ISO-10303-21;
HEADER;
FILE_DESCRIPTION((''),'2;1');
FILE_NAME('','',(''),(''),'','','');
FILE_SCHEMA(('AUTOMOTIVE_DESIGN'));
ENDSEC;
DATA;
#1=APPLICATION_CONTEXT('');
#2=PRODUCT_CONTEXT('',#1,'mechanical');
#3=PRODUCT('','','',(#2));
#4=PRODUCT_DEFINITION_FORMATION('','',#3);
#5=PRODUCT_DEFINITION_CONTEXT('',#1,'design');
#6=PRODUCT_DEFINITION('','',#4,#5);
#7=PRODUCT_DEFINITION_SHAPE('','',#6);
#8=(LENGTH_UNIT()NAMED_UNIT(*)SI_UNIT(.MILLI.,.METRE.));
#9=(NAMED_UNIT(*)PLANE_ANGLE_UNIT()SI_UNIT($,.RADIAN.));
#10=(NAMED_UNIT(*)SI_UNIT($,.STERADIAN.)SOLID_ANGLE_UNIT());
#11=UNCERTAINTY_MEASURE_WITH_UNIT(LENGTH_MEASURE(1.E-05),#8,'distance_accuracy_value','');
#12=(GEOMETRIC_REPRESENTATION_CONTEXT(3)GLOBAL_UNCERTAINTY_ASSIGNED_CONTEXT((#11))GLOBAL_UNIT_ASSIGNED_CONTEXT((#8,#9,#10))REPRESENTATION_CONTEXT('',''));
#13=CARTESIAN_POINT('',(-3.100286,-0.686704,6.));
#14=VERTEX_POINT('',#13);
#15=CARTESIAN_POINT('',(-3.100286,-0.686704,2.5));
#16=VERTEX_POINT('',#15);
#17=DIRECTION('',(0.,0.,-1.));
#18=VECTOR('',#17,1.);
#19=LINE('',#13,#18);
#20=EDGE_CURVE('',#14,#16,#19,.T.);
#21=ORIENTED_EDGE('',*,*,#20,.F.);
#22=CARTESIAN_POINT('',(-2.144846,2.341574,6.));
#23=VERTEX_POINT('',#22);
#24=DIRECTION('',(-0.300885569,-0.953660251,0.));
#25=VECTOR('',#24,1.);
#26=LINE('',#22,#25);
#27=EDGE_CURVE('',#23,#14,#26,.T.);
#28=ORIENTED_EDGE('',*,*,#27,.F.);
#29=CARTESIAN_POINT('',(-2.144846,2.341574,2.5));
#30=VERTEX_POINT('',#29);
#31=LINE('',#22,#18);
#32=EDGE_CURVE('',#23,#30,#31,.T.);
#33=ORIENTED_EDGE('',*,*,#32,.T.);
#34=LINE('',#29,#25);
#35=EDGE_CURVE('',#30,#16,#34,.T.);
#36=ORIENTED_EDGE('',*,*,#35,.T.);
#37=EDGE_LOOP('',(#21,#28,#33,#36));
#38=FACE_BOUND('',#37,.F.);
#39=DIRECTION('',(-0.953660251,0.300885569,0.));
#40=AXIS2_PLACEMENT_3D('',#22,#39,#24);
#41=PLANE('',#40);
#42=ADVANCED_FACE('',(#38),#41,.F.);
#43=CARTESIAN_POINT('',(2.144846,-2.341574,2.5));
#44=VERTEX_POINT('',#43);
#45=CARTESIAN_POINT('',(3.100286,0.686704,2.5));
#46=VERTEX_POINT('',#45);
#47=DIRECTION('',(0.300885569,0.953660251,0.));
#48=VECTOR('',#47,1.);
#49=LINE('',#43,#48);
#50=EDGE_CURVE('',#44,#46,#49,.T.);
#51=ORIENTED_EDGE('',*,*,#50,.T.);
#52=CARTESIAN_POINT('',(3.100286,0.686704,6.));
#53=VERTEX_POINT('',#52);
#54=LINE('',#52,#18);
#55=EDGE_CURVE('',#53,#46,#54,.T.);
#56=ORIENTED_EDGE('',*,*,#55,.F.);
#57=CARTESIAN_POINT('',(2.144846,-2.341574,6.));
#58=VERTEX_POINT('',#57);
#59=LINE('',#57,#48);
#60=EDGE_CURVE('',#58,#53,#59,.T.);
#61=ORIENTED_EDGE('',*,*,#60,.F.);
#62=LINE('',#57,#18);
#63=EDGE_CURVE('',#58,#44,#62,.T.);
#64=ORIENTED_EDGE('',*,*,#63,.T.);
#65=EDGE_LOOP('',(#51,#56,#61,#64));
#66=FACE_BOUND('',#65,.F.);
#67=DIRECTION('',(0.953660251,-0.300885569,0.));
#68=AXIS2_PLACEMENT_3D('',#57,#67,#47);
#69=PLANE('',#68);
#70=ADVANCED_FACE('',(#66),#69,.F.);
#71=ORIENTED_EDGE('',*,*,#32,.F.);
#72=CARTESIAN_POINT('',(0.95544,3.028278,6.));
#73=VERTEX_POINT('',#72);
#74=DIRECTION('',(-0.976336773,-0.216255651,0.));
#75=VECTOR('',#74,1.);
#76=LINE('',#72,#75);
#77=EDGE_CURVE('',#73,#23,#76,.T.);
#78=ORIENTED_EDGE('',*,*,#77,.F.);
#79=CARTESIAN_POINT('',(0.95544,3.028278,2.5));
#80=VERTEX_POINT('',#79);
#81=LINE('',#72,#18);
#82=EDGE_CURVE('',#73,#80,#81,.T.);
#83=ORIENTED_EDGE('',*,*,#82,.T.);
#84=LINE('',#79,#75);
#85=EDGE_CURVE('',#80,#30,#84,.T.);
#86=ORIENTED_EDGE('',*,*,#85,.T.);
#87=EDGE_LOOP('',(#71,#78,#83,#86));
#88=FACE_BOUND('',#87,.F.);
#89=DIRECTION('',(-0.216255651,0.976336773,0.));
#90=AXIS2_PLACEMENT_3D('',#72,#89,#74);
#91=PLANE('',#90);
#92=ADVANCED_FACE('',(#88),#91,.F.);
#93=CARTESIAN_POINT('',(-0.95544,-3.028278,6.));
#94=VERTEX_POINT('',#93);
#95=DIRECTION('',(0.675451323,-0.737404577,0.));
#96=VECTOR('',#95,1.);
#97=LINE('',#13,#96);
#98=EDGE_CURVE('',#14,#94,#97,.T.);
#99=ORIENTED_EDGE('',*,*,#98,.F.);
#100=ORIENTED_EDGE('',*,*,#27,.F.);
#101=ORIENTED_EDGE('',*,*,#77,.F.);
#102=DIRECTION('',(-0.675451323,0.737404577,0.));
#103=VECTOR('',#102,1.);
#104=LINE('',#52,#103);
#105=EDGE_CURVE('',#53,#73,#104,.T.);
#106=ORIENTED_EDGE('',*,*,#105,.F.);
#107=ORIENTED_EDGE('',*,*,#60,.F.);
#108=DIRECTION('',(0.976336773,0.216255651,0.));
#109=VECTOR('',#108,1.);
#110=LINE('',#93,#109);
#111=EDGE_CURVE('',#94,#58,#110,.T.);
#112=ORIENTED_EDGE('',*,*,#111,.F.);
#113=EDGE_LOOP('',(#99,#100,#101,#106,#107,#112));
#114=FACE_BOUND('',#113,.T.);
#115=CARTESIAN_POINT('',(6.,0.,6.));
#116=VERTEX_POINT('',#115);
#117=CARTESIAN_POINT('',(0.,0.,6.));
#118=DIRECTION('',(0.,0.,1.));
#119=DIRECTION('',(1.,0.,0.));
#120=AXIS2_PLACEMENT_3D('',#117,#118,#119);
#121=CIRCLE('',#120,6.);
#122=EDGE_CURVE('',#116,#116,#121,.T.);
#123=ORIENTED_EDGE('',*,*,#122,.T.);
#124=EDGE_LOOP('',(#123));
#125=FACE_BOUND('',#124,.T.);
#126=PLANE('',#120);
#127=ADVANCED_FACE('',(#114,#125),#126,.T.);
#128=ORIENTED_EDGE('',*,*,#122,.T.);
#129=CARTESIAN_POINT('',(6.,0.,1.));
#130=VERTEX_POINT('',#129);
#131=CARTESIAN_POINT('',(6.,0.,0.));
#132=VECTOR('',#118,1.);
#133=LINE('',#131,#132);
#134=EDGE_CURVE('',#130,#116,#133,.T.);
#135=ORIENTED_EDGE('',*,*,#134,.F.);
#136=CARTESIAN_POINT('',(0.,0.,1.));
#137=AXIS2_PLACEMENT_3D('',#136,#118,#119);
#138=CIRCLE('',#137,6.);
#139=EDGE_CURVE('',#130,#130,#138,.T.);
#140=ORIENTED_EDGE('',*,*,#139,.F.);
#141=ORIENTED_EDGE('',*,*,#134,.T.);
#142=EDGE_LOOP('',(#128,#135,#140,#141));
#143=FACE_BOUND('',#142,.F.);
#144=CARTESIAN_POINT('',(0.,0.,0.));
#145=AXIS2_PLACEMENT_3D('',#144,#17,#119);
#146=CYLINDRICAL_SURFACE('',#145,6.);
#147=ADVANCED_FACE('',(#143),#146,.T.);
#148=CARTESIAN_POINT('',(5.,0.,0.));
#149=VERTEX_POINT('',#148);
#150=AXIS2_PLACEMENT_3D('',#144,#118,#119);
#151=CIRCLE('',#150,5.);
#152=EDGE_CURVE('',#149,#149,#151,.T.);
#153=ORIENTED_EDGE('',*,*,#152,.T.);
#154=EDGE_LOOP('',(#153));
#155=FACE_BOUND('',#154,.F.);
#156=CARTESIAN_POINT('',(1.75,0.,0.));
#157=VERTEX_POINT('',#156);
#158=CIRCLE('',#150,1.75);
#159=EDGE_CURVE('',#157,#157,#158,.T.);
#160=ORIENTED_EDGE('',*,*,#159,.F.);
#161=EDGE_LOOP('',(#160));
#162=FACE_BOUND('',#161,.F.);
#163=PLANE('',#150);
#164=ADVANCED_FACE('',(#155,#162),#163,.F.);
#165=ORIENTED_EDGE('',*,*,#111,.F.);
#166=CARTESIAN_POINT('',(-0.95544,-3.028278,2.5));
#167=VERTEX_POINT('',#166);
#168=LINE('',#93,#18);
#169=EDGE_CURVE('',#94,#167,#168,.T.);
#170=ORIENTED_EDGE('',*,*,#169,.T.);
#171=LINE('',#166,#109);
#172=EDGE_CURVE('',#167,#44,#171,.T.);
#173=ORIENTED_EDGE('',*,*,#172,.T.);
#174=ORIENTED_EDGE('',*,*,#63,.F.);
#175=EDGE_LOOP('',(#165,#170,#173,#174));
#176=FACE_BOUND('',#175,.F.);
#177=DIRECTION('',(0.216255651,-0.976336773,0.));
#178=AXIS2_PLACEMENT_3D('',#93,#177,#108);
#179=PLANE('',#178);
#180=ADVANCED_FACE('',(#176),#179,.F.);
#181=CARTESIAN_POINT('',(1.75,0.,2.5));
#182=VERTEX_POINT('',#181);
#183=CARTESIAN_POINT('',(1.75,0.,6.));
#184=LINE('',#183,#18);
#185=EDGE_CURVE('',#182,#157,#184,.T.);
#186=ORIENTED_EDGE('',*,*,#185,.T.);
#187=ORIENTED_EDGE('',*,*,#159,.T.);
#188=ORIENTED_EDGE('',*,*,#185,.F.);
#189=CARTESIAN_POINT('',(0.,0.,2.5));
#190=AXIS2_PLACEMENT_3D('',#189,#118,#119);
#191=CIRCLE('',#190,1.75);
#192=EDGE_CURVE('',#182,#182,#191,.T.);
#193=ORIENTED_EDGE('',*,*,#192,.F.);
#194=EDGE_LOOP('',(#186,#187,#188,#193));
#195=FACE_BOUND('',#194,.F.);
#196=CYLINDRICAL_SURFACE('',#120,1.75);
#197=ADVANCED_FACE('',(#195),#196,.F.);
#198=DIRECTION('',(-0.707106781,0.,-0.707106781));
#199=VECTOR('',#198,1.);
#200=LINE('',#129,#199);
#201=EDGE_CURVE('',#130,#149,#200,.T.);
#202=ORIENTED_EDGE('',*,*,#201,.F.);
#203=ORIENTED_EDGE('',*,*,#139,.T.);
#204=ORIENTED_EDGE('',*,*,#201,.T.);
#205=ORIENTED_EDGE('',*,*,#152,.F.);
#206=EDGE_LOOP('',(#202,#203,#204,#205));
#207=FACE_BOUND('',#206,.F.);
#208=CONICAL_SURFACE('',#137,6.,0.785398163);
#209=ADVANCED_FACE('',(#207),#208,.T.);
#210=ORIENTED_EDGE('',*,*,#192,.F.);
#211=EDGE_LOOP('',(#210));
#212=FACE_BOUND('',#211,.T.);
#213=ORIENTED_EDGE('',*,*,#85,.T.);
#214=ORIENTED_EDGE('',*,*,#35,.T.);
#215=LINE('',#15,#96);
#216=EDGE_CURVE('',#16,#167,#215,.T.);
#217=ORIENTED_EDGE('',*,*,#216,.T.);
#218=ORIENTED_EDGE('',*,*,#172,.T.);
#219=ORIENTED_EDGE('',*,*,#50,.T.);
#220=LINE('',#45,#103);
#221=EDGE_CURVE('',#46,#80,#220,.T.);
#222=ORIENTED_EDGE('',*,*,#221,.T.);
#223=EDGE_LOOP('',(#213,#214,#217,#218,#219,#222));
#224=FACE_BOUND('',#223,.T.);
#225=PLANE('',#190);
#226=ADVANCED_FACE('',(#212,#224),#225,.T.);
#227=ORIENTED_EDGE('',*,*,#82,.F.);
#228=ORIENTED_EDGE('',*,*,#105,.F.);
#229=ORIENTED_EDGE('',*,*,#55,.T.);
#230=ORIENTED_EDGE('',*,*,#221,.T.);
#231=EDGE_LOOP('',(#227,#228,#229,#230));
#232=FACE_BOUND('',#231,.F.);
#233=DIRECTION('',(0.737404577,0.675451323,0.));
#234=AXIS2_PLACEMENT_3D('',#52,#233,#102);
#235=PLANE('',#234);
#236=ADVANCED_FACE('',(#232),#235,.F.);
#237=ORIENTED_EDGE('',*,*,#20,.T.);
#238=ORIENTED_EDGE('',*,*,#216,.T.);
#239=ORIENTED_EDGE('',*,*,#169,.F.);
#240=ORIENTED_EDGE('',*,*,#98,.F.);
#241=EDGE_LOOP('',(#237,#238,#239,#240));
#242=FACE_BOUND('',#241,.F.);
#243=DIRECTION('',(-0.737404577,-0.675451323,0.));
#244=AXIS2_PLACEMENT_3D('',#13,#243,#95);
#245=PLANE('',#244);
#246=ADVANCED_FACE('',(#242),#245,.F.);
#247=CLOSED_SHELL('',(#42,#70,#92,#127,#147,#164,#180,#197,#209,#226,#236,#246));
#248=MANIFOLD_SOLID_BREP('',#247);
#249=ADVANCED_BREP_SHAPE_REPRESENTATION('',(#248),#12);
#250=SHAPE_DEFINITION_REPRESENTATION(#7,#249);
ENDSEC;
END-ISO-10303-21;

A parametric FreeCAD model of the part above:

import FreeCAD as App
import Part
import Sketcher

V = App.Vector
Q = App.Units.Quantity


def edges_at(feature, points):
    """Names of the edges that pass closest to the given points."""
    edges = feature.Shape.Edges
    near = lambda p: min(range(len(edges)), key=lambda i: edges[i].distToShape(Part.Vertex(*p))[0])
    return sorted({f"Edge{near(p) + 1}" for p in points})


def add_polygon(sketch, points):
    """Adds a closed chain of lines whose ends are joined by coincident constraints."""
    first, n = sketch.GeometryCount, len(points)
    for a, b in zip(points, points[1:] + points[:1]):
        sketch.addGeometry(Part.LineSegment(App.Vector(*a, 0), App.Vector(*b, 0)), False)
    for i in range(n):
        sketch.addConstraint(Sketcher.Constraint("Coincident", first + i, 2, first + (i + 1) % n, 1))

doc = App.newDocument("Part")
body = doc.addObject("PartDesign::Body", "Body")

sketch1 = body.newObject("Sketcher::SketchObject", "Sketch")
sketch1.AttachmentSupport = (doc.getObject("XY_Plane"), [""])
sketch1.MapMode = "FlatFace"
sketch1.addGeometry(Part.Circle(V(0, 0, 0), V(0, 0, 1), 6), False)
sketch1.addConstraint([
    Sketcher.Constraint("Coincident", 0, 3, -1, 1),
    Sketcher.Constraint("Diameter", 0, Q("12 mm")),
])
pad1 = body.newObject("PartDesign::Pad", "Pad")
pad1.Profile = sketch1
pad1.Length = 6

sketch2 = body.newObject("Sketcher::SketchObject", "Sketch001")
sketch2.AttachmentSupport = (doc.getObject("XY_Plane"), [""])
sketch2.MapMode = "FlatFace"
sketch2.AttachmentOffset = App.Placement(V(0, 0, 6), App.Rotation())
sketch2.addGeometry(Part.Circle(V(0, 0, 0), V(0, 0, 1), 1.8), False)
sketch2.addConstraint([
    Sketcher.Constraint("Coincident", 0, 3, -1, 1),
    Sketcher.Constraint("Diameter", 0, Q("3.5 mm")),
])
pocket1 = body.newObject("PartDesign::Pocket", "Pocket")
pocket1.Profile = sketch2
pocket1.Type = "ThroughAll"

sketch3 = body.newObject("Sketcher::SketchObject", "Sketch002")
sketch3.AttachmentSupport = (doc.getObject("XY_Plane"), [""])
sketch3.MapMode = "FlatFace"
sketch3.AttachmentOffset = App.Placement(V(0, 0, 6), App.Rotation())
add_polygon(sketch3, [(2.1, -2.3), (3.1, 0.7), (1, 3), (-2.1, 2.3), (-3.1, -0.7), (-1, -3)])
sketch3.addConstraint([
    Sketcher.Constraint("Symmetric", 0, 2, 3, 2, -1, 1),
    Sketcher.Constraint("Symmetric", 1, 2, 4, 2, -1, 1),
    Sketcher.Constraint("Symmetric", 2, 2, 5, 2, -1, 1),
    Sketcher.Constraint("Equal", 0, 1),
    Sketcher.Constraint("Equal", 1, 2),
    Sketcher.Constraint("DistanceX", -1, 1, 1, 2, Q("0.95544 mm")),
    Sketcher.Constraint("DistanceY", 0, 2, 2, 2, Q("1.65487 mm")),
    Sketcher.Constraint("DistanceX", 3, 2, 2, 2, Q("0.95544 mm")),
    Sketcher.Constraint("DistanceY", 3, 2, 2, 2, Q("3.028278 mm")),
])
pocket2 = body.newObject("PartDesign::Pocket", "Pocket001")
pocket2.Profile = sketch3
pocket2.Length = 3.5
doc.recompute()

chamfer = body.newObject("PartDesign::Chamfer", "Chamfer")
chamfer.Base = (pocket2, edges_at(pocket2, [(-6, 0, 0)]))
chamfer.Size = 1

doc.recompute()
